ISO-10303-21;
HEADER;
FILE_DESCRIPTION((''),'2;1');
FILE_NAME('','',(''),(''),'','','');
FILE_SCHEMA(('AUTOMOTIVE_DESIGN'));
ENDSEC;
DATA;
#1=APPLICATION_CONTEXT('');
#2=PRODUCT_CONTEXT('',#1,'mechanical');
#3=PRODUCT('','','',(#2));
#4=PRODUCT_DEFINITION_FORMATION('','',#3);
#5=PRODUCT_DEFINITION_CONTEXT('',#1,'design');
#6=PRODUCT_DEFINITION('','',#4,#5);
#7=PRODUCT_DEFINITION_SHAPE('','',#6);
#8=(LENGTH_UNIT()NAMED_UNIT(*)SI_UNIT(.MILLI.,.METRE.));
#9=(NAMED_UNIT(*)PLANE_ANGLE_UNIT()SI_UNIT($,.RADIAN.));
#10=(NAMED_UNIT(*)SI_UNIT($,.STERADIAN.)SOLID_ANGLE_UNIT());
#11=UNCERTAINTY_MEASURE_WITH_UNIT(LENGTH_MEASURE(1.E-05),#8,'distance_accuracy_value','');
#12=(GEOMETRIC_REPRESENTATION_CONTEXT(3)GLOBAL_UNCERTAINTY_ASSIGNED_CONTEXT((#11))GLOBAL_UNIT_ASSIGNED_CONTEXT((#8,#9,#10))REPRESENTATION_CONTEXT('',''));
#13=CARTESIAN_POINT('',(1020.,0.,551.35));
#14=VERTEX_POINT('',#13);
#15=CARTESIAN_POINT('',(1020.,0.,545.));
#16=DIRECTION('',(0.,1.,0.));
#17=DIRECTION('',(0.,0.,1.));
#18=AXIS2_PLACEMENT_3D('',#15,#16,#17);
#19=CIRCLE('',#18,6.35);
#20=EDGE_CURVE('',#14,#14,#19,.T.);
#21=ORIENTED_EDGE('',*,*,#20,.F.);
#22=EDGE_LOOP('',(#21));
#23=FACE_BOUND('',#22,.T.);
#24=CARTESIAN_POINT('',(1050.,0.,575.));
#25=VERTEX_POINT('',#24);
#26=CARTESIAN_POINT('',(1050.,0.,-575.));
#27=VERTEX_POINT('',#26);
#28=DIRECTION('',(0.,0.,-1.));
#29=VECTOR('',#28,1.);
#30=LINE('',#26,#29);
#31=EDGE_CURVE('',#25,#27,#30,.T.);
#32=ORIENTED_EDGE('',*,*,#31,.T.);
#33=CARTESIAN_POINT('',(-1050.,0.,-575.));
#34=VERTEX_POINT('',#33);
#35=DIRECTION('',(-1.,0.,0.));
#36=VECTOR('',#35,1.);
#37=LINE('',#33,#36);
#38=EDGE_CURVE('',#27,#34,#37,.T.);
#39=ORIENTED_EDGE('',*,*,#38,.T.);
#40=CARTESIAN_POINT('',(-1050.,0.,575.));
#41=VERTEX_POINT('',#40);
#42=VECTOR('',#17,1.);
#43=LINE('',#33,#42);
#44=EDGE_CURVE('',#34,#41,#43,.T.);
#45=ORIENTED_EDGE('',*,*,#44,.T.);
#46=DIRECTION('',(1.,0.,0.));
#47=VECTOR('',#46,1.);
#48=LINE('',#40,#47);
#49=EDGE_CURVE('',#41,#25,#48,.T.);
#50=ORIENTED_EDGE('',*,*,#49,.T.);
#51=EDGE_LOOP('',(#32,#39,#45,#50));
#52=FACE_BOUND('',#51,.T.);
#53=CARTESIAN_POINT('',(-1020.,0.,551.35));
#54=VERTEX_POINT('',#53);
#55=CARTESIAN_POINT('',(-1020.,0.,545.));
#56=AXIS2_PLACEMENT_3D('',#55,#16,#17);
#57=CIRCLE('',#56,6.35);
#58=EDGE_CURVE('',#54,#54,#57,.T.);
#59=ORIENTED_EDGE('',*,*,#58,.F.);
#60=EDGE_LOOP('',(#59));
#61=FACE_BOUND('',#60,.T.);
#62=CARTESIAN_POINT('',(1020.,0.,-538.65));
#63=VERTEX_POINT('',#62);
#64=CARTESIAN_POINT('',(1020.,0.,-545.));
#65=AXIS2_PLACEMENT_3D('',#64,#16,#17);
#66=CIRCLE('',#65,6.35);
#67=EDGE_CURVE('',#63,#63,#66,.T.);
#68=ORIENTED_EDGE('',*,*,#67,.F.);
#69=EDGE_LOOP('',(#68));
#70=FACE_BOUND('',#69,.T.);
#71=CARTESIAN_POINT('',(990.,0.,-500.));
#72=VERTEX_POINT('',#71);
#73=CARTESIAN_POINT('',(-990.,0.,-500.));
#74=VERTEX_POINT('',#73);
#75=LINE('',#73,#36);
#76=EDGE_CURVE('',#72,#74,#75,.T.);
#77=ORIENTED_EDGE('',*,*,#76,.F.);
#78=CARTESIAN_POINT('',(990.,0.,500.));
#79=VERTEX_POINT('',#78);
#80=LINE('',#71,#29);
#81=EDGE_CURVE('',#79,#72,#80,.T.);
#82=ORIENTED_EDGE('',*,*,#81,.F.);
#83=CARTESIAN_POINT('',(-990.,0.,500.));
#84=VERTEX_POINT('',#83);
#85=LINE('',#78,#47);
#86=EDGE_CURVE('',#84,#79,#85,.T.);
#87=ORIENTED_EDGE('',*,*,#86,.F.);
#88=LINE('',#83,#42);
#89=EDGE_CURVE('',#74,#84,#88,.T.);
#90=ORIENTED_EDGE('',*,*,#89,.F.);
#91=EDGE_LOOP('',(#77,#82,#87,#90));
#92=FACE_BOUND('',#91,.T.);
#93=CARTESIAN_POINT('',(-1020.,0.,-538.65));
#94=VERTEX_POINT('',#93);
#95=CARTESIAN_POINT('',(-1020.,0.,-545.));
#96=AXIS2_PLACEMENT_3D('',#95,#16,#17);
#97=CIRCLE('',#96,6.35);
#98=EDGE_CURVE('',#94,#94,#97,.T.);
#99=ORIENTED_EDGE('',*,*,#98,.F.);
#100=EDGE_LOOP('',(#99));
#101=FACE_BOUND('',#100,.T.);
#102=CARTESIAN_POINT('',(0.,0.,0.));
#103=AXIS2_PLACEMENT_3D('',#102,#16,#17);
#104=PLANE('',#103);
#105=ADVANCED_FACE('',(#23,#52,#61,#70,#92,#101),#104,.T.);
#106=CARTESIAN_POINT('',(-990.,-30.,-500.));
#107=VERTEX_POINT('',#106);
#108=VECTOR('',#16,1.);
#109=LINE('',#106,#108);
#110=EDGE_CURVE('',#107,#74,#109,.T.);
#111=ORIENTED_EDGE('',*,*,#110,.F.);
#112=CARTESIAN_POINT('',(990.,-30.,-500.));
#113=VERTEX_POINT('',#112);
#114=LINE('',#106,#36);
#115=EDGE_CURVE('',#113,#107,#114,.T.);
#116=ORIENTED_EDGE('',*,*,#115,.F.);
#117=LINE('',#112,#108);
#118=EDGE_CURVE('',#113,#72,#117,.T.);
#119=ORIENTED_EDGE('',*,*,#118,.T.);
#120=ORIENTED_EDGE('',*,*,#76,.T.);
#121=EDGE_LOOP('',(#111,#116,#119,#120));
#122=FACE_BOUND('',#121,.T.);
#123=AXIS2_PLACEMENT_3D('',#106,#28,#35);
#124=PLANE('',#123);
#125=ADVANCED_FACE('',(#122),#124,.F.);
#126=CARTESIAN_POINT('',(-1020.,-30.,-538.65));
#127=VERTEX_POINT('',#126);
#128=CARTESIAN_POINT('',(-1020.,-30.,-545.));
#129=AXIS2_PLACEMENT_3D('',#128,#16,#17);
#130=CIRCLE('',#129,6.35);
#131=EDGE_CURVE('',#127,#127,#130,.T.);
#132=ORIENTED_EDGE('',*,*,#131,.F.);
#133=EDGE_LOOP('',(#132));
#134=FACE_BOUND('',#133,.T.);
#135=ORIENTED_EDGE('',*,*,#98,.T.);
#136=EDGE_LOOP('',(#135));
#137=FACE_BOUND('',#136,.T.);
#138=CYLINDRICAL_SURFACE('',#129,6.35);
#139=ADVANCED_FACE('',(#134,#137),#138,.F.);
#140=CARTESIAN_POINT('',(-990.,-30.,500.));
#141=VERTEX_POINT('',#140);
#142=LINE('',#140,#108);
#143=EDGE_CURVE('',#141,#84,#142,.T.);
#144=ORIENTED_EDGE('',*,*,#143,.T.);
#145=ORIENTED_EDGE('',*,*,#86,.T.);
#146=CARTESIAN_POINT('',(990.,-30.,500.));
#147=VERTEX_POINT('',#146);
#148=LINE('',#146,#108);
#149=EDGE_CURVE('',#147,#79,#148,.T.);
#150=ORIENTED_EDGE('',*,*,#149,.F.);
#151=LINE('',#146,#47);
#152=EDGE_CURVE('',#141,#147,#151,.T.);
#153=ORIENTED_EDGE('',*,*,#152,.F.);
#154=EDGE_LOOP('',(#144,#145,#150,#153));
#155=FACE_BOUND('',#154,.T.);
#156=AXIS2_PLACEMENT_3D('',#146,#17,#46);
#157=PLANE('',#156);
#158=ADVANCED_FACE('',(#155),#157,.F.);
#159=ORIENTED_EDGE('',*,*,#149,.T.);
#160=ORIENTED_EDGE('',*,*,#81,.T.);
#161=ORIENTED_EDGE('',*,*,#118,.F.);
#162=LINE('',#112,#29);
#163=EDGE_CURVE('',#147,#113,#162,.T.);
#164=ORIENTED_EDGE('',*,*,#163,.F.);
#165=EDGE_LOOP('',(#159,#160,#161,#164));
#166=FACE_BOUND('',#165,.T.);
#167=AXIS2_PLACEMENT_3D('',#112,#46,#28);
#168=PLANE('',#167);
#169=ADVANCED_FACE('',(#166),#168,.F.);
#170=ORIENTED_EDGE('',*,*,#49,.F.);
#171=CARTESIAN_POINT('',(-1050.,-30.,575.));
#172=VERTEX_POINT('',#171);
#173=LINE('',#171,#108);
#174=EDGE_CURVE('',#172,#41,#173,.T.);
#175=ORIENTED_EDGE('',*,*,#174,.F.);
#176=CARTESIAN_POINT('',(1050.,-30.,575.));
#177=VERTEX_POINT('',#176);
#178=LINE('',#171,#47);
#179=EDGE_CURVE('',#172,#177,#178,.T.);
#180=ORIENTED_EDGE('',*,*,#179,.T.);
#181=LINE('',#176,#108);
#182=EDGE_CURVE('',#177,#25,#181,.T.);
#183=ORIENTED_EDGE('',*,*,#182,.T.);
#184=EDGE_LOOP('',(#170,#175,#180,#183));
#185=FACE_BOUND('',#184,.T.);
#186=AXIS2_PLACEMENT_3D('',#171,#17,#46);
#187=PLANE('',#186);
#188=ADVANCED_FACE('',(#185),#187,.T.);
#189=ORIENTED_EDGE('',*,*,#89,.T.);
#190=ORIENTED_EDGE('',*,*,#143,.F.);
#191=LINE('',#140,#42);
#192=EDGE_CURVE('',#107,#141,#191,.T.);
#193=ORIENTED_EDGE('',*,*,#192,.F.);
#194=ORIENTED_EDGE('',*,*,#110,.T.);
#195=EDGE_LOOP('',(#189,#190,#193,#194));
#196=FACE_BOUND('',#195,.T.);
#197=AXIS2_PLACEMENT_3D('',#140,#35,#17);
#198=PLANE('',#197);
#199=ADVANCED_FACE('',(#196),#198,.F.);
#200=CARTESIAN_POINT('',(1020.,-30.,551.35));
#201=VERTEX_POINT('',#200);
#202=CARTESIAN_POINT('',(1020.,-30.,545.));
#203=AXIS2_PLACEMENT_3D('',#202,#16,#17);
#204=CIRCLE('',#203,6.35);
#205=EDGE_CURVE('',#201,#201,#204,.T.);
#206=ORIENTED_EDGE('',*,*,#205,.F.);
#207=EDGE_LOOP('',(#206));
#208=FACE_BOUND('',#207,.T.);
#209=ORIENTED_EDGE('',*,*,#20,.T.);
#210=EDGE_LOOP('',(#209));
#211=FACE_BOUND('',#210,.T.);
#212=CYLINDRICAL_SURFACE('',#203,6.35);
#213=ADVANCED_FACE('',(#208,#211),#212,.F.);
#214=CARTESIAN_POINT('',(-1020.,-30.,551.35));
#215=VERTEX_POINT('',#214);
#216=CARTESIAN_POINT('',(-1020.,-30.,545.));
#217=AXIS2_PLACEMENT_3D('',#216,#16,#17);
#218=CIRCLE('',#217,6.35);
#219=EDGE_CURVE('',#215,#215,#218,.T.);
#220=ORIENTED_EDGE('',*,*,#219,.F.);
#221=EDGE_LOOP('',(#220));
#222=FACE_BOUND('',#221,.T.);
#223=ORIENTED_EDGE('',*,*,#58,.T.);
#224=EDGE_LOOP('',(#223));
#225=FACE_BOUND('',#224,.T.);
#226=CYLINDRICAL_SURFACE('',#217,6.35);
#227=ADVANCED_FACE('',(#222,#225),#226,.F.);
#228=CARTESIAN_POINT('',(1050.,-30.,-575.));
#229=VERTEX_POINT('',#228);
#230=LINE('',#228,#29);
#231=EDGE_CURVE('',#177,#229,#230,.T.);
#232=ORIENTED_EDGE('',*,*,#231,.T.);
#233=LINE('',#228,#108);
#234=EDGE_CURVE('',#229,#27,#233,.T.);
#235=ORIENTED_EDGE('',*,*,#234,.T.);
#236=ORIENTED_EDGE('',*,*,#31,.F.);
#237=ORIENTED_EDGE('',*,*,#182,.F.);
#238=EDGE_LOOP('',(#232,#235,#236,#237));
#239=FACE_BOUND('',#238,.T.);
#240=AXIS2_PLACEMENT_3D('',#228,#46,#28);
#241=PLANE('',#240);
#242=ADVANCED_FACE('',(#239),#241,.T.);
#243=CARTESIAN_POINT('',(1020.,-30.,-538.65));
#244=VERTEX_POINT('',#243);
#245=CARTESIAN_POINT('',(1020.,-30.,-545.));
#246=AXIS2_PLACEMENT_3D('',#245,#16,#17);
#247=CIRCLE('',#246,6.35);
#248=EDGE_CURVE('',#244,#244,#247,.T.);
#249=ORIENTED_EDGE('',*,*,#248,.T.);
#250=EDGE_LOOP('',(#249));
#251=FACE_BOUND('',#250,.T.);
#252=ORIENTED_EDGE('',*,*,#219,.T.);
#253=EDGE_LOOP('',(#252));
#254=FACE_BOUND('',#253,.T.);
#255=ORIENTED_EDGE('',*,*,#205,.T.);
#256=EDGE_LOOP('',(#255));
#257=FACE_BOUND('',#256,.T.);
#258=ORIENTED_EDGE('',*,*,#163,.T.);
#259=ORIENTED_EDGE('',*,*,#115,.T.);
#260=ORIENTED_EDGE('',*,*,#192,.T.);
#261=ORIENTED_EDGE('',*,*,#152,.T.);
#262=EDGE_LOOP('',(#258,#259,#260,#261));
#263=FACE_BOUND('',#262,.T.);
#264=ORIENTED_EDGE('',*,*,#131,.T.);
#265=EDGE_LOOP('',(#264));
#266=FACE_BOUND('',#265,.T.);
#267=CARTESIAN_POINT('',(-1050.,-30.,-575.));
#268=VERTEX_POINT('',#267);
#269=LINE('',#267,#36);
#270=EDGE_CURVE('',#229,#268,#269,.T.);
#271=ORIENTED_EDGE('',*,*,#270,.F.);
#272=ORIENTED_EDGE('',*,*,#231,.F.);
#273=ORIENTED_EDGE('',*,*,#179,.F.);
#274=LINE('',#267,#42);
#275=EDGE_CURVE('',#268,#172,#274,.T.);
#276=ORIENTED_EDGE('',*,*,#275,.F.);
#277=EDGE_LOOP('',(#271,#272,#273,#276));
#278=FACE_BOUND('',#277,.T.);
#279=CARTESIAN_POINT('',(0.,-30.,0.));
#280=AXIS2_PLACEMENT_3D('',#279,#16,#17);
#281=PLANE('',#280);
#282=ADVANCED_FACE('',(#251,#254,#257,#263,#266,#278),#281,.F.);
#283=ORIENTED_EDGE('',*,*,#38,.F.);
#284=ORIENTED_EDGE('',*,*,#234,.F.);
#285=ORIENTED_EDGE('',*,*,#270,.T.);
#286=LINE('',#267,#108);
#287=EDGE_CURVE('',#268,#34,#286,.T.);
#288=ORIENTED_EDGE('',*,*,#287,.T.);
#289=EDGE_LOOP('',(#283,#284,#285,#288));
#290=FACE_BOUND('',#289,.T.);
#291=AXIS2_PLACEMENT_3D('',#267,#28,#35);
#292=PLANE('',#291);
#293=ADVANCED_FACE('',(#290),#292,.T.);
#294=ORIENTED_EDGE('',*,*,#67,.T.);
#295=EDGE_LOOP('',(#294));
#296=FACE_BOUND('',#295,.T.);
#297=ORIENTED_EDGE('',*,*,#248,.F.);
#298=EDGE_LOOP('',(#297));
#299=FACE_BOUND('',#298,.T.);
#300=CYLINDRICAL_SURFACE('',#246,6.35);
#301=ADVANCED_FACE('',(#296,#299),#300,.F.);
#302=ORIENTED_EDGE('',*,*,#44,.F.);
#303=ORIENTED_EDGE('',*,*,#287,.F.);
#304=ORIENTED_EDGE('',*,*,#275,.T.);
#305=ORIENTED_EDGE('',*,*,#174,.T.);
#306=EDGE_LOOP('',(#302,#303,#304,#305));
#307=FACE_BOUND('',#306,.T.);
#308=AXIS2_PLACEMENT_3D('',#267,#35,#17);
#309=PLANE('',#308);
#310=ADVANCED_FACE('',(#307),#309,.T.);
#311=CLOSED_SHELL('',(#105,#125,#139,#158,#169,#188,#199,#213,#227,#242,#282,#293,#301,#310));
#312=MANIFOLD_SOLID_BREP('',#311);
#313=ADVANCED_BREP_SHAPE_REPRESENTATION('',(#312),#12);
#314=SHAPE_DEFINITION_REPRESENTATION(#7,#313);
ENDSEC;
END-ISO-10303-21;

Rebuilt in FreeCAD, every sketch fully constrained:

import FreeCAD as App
import Part
import Sketcher

doc = App.newDocument("Part")
body = doc.addObject("PartDesign::Body", "Body")

# Sketch on XZ plane
sketch1 = doc.addObject("Sketcher::SketchObject", "Sketch")
body.addObject(sketch1)
sketch1.AttachmentSupport = (doc.XZ_Plane, [""])
sketch1.MapMode = "FlatFace"
sketch1.addGeometry([
    Part.LineSegment(App.Vector(-1050, -575, 0), App.Vector(-1050, 575, 0)),  # 0
    Part.LineSegment(App.Vector(-1050, 575, 0), App.Vector(1050, 575, 0)),  # 1
    Part.LineSegment(App.Vector(1050, 575, 0), App.Vector(1050, -575, 0)),  # 2
    Part.LineSegment(App.Vector(1050, -575, 0), App.Vector(-1050, -575, 0)),  # 3
    Part.LineSegment(App.Vector(990, 500, 0), App.Vector(-990, 500, 0)),  # 4
    Part.LineSegment(App.Vector(-990, 500, 0), App.Vector(-990, -500, 0)),  # 5
    Part.LineSegment(App.Vector(-990, -500, 0), App.Vector(990, -500, 0)),  # 6
    Part.LineSegment(App.Vector(990, -500, 0), App.Vector(990, 500, 0)),  # 7
], False)
sketch1.addConstraint([
    Sketcher.Constraint("Coincident", 0, 2, 1, 1),
    Sketcher.Constraint("Coincident", 1, 2, 2, 1),
    Sketcher.Constraint("Coincident", 2, 2, 3, 1),
    Sketcher.Constraint("Coincident", 3, 2, 0, 1),
    Sketcher.Constraint("Coincident", 4, 2, 5, 1),
    Sketcher.Constraint("Coincident", 5, 2, 6, 1),
    Sketcher.Constraint("Coincident", 6, 2, 7, 1),
    Sketcher.Constraint("Coincident", 7, 2, 4, 1),
    Sketcher.Constraint("Vertical", 0),
    Sketcher.Constraint("Horizontal", 1),
    Sketcher.Constraint("Vertical", 2),
    Sketcher.Constraint("Horizontal", 3),
    Sketcher.Constraint("Horizontal", 4),
    Sketcher.Constraint("Vertical", 5),
    Sketcher.Constraint("Horizontal", 6),
    Sketcher.Constraint("Vertical", 7),
    Sketcher.Constraint("Symmetric", 0, 2, 2, 2, -1, 1),
    Sketcher.Constraint("Symmetric", 4, 2, 6, 2, -1, 1),
    Sketcher.Constraint("DistanceX", 1, 1, 1, 2, 2100.0),
    Sketcher.Constraint("DistanceX", 4, 2, 4, 1, 1980.0),
    Sketcher.Constraint("DistanceY", 0, 1, 0, 2, 1150.0),
    Sketcher.Constraint("DistanceY", 5, 2, 5, 1, 1000.0),
])
pad1 = doc.addObject("PartDesign::Pad", "Pad")
body.addObject(pad1)
pad1.Profile = sketch1
pad1.Length = 30

# Sketch on XZ plane
sketch2 = doc.addObject("Sketcher::SketchObject", "Sketch001")
body.addObject(sketch2)
sketch2.AttachmentSupport = (doc.XZ_Plane, [""])
sketch2.MapMode = "FlatFace"
sketch2.addGeometry([
    Part.Circle(App.Vector(-1020, -545, 0), App.Vector(0, 0, 1), 6.35),
    Part.Circle(App.Vector(-1020, 545, 0), App.Vector(0, 0, 1), 6.35),
    Part.Circle(App.Vector(1020, -545, 0), App.Vector(0, 0, 1), 6.35),
    Part.Circle(App.Vector(1020, 545, 0), App.Vector(0, 0, 1), 6.35),
], False)
sketch2.addConstraint([
    Sketcher.Constraint("Equal", 0, 1),
    Sketcher.Constraint("Equal", 1, 2),
    Sketcher.Constraint("Equal", 2, 3),
    Sketcher.Constraint("Symmetric", 1, 3, 2, 3, -1, 1),
    Sketcher.Constraint("Symmetric", 0, 3, 3, 3, -1, 1),
    Sketcher.Constraint("Symmetric", 0, 3, 2, 3, -2),
    Sketcher.Constraint("Diameter", 0, 12.7),
    Sketcher.Constraint("DistanceX", 0, 3, -1, 1, 1020.0),
    Sketcher.Constraint("DistanceY", 0, 3, -1, 1, 545.0),
])
pocket1 = doc.addObject("PartDesign::Pocket", "Pocket")
body.addObject(pocket1)
pocket1.Profile = sketch2
pocket1.Type = "ThroughAll"
pocket1.Reversed = True

doc.recompute()
